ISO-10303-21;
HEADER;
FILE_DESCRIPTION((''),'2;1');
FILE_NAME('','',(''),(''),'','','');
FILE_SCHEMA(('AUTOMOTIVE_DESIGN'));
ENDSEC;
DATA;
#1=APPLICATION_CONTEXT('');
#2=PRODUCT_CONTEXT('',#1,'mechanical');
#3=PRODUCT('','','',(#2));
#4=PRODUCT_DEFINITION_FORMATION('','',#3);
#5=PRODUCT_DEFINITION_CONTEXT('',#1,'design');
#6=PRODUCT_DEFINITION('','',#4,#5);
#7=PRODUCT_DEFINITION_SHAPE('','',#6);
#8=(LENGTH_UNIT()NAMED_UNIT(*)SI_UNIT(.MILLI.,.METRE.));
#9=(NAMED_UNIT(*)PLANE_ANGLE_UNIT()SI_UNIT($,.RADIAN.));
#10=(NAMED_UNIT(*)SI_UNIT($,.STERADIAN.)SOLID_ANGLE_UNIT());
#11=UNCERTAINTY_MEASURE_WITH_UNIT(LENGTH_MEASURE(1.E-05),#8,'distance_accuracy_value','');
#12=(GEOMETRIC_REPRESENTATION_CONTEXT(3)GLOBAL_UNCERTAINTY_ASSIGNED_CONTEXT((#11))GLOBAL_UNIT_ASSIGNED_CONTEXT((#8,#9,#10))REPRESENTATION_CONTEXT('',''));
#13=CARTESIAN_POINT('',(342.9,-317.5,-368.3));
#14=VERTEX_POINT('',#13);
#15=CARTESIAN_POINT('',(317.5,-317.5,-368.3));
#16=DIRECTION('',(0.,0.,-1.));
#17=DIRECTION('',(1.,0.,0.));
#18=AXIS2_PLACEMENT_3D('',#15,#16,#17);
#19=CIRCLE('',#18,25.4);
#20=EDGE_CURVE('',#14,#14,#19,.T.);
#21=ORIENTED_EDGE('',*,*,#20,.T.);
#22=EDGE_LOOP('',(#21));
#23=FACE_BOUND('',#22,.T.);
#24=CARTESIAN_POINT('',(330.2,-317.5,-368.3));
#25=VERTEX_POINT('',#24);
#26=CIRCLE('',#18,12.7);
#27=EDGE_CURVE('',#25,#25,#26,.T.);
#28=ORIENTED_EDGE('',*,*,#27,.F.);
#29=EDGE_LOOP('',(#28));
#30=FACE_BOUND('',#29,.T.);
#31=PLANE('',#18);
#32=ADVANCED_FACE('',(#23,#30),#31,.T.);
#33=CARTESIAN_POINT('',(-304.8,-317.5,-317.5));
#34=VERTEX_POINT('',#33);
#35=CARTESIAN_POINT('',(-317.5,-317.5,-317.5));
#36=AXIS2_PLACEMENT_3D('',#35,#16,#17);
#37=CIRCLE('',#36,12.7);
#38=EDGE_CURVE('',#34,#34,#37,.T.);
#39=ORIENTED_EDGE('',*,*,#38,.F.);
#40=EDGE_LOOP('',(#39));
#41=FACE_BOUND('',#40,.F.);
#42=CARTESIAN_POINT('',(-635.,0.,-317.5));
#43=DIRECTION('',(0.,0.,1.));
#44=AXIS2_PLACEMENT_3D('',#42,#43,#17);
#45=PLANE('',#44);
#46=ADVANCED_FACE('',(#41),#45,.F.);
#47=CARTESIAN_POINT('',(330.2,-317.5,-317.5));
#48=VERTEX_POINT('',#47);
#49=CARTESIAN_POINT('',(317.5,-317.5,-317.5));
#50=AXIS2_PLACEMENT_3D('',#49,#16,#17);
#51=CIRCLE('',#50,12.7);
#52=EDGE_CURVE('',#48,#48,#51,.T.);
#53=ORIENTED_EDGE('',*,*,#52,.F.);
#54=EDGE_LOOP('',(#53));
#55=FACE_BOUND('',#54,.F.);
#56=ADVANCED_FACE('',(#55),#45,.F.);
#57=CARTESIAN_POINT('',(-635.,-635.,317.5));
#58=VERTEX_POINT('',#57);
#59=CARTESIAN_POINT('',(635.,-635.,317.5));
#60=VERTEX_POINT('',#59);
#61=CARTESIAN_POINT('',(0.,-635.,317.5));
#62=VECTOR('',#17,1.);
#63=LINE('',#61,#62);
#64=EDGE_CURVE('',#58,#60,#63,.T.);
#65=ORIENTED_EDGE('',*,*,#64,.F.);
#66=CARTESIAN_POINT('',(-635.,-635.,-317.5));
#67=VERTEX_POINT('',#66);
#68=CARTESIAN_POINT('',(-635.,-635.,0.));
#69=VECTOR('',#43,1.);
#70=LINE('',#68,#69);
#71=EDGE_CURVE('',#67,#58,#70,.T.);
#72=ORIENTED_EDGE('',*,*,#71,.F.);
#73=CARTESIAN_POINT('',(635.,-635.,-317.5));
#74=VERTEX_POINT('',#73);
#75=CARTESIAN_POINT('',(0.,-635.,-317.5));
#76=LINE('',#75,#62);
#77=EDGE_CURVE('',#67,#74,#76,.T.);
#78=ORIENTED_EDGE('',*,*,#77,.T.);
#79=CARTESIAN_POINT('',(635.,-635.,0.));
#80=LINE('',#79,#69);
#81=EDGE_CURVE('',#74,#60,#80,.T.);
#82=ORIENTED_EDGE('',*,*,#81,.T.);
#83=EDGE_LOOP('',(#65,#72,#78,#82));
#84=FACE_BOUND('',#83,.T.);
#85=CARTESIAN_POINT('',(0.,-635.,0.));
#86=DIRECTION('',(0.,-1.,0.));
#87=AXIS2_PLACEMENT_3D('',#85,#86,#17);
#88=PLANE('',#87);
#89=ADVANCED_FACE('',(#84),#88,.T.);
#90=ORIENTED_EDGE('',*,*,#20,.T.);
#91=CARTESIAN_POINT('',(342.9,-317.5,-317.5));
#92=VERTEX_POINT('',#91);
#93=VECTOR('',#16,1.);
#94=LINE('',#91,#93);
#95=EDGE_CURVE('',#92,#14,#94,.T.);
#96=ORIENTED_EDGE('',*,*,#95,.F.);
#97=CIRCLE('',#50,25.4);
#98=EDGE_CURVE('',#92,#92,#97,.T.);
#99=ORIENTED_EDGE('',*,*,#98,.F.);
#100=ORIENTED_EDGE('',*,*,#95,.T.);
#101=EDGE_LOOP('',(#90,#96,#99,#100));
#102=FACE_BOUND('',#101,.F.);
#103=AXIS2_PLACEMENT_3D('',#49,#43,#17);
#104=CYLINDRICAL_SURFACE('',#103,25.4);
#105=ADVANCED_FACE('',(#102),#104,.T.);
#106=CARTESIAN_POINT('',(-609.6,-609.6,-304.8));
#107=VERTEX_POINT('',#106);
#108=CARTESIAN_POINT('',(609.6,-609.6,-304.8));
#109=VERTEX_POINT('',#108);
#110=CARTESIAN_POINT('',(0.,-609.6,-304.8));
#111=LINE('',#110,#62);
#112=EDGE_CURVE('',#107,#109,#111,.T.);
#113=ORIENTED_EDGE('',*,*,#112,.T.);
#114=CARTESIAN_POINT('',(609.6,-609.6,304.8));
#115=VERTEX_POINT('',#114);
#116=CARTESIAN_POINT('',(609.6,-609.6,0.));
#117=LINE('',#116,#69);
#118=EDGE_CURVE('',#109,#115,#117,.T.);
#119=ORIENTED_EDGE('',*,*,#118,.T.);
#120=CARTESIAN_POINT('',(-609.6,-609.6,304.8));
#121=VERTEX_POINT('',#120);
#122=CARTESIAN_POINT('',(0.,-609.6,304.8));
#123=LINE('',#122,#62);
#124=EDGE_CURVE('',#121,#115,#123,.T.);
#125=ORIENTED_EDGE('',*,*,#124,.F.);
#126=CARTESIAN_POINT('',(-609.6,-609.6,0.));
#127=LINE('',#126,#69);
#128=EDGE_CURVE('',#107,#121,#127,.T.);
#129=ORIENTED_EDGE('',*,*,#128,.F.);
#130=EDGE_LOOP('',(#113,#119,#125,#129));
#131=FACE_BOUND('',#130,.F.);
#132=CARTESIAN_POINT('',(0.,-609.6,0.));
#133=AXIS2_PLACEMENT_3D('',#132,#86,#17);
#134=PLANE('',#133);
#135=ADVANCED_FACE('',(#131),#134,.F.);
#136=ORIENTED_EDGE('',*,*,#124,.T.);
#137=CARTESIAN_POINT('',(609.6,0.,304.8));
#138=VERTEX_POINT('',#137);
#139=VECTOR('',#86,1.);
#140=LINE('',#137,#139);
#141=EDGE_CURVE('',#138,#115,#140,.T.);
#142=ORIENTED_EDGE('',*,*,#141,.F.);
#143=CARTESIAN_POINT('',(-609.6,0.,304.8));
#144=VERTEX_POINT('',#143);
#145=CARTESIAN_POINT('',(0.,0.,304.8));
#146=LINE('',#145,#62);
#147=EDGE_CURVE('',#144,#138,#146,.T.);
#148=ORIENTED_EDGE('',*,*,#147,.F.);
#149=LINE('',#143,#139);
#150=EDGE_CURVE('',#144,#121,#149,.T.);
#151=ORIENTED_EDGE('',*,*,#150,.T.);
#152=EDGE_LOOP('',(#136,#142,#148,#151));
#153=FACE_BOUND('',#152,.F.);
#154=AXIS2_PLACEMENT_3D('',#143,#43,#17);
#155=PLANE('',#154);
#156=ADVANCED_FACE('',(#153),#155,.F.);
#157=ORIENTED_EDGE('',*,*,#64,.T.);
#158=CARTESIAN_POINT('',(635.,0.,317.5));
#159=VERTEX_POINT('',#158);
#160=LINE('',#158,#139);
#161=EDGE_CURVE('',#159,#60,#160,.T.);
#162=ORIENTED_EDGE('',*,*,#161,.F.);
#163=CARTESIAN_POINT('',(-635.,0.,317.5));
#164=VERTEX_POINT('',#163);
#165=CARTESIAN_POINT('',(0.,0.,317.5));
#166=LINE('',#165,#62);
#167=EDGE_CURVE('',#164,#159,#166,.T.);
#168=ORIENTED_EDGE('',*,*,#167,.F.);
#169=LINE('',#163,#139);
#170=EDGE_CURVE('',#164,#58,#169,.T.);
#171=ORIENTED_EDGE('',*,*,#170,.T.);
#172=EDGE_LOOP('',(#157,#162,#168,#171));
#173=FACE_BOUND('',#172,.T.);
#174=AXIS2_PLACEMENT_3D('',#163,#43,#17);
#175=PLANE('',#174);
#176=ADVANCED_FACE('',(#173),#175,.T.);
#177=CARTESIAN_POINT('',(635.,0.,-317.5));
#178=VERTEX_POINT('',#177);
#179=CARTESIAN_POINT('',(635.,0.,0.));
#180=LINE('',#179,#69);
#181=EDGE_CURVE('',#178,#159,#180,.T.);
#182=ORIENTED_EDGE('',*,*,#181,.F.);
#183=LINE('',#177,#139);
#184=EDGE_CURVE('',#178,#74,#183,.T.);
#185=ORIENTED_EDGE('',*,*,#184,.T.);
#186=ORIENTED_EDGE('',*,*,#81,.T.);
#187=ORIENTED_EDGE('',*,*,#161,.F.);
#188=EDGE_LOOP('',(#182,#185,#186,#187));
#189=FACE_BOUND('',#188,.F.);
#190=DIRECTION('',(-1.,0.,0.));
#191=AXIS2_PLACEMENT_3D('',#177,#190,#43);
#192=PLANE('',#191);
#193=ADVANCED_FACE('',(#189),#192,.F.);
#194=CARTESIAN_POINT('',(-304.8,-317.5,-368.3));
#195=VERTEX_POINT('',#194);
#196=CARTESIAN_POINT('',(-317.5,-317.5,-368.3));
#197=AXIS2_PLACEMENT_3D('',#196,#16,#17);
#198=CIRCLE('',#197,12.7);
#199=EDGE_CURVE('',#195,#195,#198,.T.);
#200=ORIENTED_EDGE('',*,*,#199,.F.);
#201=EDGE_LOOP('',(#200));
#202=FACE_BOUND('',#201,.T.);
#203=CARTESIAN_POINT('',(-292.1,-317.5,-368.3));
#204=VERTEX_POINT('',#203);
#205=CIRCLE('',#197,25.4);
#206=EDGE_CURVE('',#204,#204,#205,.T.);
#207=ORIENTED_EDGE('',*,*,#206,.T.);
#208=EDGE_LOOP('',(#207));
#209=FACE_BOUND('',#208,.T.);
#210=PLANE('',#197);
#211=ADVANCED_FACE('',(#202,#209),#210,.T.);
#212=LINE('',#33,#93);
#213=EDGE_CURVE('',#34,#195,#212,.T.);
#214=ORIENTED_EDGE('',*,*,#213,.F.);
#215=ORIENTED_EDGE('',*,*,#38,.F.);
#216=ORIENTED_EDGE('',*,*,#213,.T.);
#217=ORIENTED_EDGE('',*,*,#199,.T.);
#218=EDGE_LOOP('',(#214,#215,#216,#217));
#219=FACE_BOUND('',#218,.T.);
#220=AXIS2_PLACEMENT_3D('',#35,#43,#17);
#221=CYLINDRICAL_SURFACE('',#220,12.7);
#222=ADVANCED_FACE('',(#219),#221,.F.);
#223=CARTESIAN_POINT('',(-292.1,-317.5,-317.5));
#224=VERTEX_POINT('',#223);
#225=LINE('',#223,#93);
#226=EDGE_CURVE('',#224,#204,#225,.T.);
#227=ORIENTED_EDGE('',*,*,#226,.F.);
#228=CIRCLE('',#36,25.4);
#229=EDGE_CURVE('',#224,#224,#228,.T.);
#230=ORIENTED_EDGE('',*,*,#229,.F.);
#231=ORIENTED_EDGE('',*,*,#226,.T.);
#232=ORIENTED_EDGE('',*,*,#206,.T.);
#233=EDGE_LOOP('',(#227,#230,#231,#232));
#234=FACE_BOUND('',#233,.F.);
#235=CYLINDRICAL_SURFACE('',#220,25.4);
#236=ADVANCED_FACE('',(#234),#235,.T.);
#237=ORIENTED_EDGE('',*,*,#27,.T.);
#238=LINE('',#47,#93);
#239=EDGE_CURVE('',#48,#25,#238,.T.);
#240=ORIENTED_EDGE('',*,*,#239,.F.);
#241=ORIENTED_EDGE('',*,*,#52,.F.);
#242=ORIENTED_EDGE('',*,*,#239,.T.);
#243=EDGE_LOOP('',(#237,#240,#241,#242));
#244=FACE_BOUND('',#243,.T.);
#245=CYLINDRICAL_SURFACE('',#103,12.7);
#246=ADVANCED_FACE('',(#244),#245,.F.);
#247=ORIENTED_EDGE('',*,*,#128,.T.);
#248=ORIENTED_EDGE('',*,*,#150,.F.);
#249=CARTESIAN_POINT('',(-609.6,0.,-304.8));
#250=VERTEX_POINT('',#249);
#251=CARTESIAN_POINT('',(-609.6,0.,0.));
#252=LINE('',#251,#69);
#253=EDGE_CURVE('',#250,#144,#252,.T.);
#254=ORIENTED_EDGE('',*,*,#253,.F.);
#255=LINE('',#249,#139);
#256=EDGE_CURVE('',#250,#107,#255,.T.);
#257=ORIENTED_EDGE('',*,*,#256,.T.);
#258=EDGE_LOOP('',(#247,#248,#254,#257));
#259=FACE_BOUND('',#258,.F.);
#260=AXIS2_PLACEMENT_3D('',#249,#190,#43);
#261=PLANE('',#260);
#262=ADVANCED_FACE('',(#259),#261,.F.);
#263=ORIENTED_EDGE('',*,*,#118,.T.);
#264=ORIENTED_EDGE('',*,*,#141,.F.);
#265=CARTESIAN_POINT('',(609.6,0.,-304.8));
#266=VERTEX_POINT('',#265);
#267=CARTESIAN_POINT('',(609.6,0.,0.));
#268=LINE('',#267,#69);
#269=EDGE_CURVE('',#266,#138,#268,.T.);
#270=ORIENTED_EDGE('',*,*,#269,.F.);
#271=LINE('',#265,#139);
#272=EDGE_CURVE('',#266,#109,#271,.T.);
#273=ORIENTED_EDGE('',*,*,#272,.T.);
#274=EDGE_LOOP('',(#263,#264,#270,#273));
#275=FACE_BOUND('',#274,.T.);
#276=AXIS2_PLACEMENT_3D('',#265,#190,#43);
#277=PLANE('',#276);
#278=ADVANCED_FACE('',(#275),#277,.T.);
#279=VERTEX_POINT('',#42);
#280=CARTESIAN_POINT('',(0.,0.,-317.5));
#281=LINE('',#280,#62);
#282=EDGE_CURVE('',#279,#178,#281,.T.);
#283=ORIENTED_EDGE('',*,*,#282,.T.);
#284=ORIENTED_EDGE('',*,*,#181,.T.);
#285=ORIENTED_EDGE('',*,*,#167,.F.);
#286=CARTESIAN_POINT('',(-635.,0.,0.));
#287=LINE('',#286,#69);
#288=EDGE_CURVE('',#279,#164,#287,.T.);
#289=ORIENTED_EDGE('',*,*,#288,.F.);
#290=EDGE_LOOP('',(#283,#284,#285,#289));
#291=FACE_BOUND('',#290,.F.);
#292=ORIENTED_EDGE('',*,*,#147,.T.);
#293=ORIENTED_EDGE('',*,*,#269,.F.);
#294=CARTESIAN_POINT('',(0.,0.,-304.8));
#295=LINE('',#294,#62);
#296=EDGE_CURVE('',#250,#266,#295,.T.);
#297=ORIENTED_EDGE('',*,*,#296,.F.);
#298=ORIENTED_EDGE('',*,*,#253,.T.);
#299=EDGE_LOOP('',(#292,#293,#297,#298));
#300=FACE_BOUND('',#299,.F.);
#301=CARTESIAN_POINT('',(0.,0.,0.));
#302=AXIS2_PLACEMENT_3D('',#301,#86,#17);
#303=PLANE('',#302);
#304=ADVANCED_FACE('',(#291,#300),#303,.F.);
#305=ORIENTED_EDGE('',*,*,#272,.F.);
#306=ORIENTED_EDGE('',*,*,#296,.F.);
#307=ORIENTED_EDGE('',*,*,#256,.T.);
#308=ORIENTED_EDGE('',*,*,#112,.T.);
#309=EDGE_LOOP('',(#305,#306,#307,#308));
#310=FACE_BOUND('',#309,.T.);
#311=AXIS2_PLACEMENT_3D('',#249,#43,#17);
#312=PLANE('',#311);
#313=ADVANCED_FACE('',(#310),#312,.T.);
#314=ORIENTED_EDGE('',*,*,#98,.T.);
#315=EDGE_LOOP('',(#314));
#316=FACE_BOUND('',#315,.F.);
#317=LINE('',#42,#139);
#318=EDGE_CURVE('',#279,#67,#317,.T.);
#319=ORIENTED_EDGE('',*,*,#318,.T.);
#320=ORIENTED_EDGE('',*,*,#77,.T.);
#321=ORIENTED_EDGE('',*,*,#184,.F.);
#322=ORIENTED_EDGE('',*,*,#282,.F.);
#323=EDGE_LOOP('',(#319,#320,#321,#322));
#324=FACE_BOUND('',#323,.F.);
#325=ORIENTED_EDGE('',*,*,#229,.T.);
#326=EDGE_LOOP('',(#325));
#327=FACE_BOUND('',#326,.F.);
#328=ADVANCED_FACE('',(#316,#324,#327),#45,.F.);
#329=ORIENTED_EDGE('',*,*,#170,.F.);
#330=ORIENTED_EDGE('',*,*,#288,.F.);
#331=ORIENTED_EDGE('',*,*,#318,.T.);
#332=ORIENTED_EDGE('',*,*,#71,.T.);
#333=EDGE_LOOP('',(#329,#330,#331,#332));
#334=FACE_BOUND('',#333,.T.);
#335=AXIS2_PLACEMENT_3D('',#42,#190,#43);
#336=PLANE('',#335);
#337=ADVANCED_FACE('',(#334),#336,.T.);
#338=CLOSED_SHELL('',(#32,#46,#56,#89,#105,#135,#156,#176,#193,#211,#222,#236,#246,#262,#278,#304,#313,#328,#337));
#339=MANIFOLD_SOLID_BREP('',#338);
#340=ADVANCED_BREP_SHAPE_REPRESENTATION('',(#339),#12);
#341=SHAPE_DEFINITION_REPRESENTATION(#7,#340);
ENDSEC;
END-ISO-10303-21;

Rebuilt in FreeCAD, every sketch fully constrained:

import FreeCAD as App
import Part
import Sketcher
from FreeCAD import Vector
Q = App.Units.Quantity


def add_polygon(sketch, points):
    """Adds a closed chain of lines whose ends are joined by coincident constraints."""
    first, n = sketch.GeometryCount, len(points)
    for a, b in zip(points, points[1:] + points[:1]):
        sketch.addGeometry(Part.LineSegment(App.Vector(*a, 0), App.Vector(*b, 0)), False)
    for i in range(n):
        sketch.addConstraint(Sketcher.Constraint("Coincident", first + i, 2, first + (i + 1) % n, 1))

doc = App.newDocument("Part")
body = doc.addObject("PartDesign::Body", "Body")

# Sketch on XZ plane
sketch1 = body.newObject("Sketcher::SketchObject", "Sketch")
sketch1.AttachmentSupport = (doc.getObject("XZ_Plane"), [""])
sketch1.MapMode = "FlatFace"
add_polygon(sketch1, [(-635, 318), (-635, -318), (635, -318), (635, 318)])  # lines 0-3
sketch1.addConstraint(Sketcher.Constraint("Vertical", 0))
sketch1.addConstraint(Sketcher.Constraint("Horizontal", 1))
sketch1.addConstraint(Sketcher.Constraint("Vertical", 2))
sketch1.addConstraint(Sketcher.Constraint("Horizontal", 3))
sketch1.addConstraint(Sketcher.Constraint("Symmetric", 0, 2, 2, 2, -1, 1))
sketch1.addConstraint(Sketcher.Constraint("DistanceX", 1, 1, 1, 2, Q("50 in")))
sketch1.addConstraint(Sketcher.Constraint("DistanceY", 0, 2, 0, 1, Q("25 in")))
pad1 = body.newObject("PartDesign::Pad", "Pad")
pad1.Profile = sketch1
pad1.Length = Q("25 in")

# Sketch on XZ plane
sketch2 = body.newObject("Sketcher::SketchObject", "Sketch001")
sketch2.AttachmentSupport = (doc.getObject("XZ_Plane"), [""])
sketch2.MapMode = "FlatFace"
add_polygon(sketch2, [(-610, 305), (-610, -305), (610, -305), (610, 305)])  # lines 0-3
sketch2.addConstraint(Sketcher.Constraint("Vertical", 0))
sketch2.addConstraint(Sketcher.Constraint("Horizontal", 1))
sketch2.addConstraint(Sketcher.Constraint("Vertical", 2))
sketch2.addConstraint(Sketcher.Constraint("Horizontal", 3))
sketch2.addConstraint(Sketcher.Constraint("Symmetric", 0, 2, 2, 2, -1, 1))
sketch2.addConstraint(Sketcher.Constraint("DistanceX", 1, 1, 1, 2, Q("48 in")))
sketch2.addConstraint(Sketcher.Constraint("DistanceY", 0, 2, 0, 1, Q("24 in")))
pocket1 = body.newObject("PartDesign::Pocket", "Pocket")
pocket1.Profile = sketch2
pocket1.Length = Q("24 in")
pocket1.Reversed = True

# Sketch on XY plane
sketch3 = body.newObject("Sketcher::SketchObject", "Sketch002")
sketch3.AttachmentSupport = (doc.getObject("XY_Plane"), [""])
sketch3.MapMode = "FlatFace"
sketch3.AttachmentOffset = App.Placement(Vector(0, 0, -12.5 * 25.4), App.Rotation())
sketch3.addGeometry(Part.Circle(Vector(318, -318, 0), Vector(0, 0, 1), 25), False)
sketch3.addGeometry(Part.Circle(Vector(318, -318, 0), Vector(0, 0, 1), 13), False)
sketch3.addGeometry(Part.Circle(Vector(-318, -318, 0), Vector(0, 0, 1), 25), False)
sketch3.addGeometry(Part.Circle(Vector(-318, -318, 0), Vector(0, 0, 1), 13), False)
sketch3.addConstraint(Sketcher.Constraint("Coincident", 1, 3, 0, 3))
sketch3.addConstraint(Sketcher.Constraint("Coincident", 3, 3, 2, 3))
sketch3.addConstraint(Sketcher.Constraint("Equal", 0, 2))
sketch3.addConstraint(Sketcher.Constraint("Equal", 1, 3))
sketch3.addConstraint(Sketcher.Constraint("Symmetric", 0, 3, 2, 3, -2))
sketch3.addConstraint(Sketcher.Constraint("Diameter", 0, Q("2 in")))
sketch3.addConstraint(Sketcher.Constraint("Diameter", 1, Q("1 in")))
sketch3.addConstraint(Sketcher.Constraint("DistanceX", 2, 3, 0, 3, Q("25 in")))
sketch3.addConstraint(Sketcher.Constraint("DistanceY", 0, 3, -1, 1, Q("12.5 in")))
pad2 = body.newObject("PartDesign::Pad", "Pad001")
pad2.Profile = sketch3
pad2.Length = Q("2 in")
pad2.Reversed = True

doc.recompute()
